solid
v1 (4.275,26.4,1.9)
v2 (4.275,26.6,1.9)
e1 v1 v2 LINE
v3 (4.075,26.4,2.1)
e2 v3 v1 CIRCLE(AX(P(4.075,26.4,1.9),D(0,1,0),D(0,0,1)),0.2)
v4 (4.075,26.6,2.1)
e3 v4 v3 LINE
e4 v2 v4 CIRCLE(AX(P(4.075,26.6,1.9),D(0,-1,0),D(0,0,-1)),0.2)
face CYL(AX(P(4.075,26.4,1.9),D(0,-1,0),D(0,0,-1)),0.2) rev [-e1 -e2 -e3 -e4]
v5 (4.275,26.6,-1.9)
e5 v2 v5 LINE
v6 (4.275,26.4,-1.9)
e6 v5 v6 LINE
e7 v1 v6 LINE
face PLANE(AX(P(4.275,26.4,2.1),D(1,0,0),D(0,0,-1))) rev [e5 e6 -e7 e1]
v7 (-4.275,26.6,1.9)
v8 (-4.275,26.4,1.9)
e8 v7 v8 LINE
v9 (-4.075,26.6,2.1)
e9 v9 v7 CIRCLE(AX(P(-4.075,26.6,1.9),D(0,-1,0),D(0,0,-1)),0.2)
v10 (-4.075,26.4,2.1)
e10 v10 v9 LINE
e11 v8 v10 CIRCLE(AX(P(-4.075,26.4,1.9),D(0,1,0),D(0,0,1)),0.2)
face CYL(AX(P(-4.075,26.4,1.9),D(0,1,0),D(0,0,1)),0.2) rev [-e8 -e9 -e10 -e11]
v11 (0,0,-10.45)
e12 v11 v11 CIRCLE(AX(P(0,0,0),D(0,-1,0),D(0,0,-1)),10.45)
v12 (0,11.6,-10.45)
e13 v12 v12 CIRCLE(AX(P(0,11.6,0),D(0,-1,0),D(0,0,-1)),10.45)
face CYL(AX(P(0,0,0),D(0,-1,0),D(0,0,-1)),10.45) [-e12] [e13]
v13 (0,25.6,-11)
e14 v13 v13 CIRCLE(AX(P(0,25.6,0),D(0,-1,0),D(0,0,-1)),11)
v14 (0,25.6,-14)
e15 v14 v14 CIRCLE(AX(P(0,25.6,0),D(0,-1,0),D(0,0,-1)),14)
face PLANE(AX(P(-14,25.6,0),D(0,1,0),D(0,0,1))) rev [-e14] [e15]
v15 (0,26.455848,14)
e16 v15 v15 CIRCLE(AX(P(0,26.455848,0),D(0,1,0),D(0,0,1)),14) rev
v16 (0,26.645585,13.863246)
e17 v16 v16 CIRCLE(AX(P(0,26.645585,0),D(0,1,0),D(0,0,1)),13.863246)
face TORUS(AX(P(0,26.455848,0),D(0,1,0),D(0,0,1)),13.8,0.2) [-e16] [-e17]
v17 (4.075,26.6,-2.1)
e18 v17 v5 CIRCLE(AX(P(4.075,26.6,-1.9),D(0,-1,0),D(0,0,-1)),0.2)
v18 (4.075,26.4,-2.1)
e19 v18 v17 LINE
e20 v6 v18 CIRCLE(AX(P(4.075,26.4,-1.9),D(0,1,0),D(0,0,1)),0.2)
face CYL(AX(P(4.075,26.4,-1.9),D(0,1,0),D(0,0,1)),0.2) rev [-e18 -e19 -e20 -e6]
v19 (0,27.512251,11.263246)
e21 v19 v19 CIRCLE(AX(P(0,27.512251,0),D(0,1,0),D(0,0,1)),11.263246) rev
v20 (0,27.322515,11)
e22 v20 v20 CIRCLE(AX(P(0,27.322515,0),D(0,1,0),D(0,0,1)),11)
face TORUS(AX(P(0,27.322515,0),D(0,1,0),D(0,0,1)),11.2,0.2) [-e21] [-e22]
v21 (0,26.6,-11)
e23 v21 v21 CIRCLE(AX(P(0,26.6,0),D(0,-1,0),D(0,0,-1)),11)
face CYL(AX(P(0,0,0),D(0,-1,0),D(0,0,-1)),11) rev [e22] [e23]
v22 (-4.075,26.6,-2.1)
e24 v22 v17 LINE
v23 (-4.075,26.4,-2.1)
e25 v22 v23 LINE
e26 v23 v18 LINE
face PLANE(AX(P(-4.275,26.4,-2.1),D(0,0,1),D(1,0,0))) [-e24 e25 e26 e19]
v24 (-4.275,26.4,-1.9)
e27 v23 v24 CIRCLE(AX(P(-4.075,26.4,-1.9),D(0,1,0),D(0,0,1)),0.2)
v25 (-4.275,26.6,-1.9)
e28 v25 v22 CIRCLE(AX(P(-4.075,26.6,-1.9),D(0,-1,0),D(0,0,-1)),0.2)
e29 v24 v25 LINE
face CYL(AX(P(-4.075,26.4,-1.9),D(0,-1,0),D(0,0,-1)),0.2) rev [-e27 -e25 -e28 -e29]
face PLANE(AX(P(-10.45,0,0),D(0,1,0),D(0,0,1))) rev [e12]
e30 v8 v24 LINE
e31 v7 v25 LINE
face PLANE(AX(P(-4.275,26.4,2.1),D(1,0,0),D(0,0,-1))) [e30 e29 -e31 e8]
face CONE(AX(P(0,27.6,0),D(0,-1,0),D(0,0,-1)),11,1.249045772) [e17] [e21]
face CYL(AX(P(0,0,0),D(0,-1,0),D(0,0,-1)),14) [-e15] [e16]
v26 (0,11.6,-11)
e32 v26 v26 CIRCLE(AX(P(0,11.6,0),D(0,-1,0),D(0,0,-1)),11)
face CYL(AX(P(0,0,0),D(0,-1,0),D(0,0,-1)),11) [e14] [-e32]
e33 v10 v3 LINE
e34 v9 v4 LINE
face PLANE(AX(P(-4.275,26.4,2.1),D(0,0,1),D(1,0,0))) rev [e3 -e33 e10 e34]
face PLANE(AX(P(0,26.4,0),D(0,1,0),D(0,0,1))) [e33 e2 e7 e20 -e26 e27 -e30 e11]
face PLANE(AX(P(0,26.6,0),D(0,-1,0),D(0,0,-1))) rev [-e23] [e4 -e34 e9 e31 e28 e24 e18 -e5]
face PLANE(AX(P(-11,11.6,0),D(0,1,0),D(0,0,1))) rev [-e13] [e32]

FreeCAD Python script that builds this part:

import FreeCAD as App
import Part
import Sketcher

V = App.Vector
Q = App.Units.Quantity


def edges_at(feature, points):
    """Names of the edges that pass closest to the given points."""
    edges = feature.Shape.Edges
    near = lambda p: min(range(len(edges)), key=lambda i: edges[i].distToShape(Part.Vertex(*p))[0])
    return sorted({f"Edge{near(p) + 1}" for p in points})


def add_polygon(sketch, points):
    """Adds a closed chain of lines whose ends are joined by coincident constraints."""
    first, n = sketch.GeometryCount, len(points)
    for a, b in zip(points, points[1:] + points[:1]):
        sketch.addGeometry(Part.LineSegment(App.Vector(*a, 0), App.Vector(*b, 0)), False)
    for i in range(n):
        sketch.addConstraint(Sketcher.Constraint("Coincident", first + i, 2, first + (i + 1) % n, 1))

doc = App.newDocument("Part")
body = doc.addObject("PartDesign::Body", "Body")

# Sketch on XY plane
sketch1 = body.newObject("Sketcher::SketchObject", "Sketch")
sketch1.AttachmentSupport = (doc.getObject("XY_Plane"), [""])
sketch1.MapMode = "FlatFace"
add_polygon(sketch1, [(-11, 27.6), (-14, 26.6), (-14, 25.6), (-11, 25.6), (-11, 11.6), (-10.4, 11.6), (-10.4, 0), (0, 0), (0, 26.6), (-11, 26.6)])  # lines 0-9
sketch1.addConstraint([
    Sketcher.Constraint("Vertical", 1),
    Sketcher.Constraint("Horizontal", 2),
    Sketcher.Constraint("Vertical", 3),
    Sketcher.Constraint("Horizontal", 4),
    Sketcher.Constraint("Vertical", 5),
    Sketcher.Constraint("Horizontal", 6),
    Sketcher.Constraint("Vertical", 7),
    Sketcher.Constraint("Horizontal", 8),
    Sketcher.Constraint("Vertical", 9),
    Sketcher.Constraint("Coincident", 6, 2, -1, 1),
    Sketcher.Constraint("Horizontal", 0, 2, 7, 2),
    Sketcher.Constraint("Vertical", 3, 2, 8, 2),
    Sketcher.Constraint("Equal", 1, 9),
    Sketcher.Constraint("DistanceX", 2, 1, 2, 2, Q("3 mm")),
    Sketcher.Constraint("DistanceX", 8, 2, 8, 1, Q("11 mm")),
    Sketcher.Constraint("DistanceY", 1, 2, 1, 1, Q("1 mm")),
    Sketcher.Constraint("DistanceY", 3, 2, 3, 1, Q("14 mm")),
    Sketcher.Constraint("DistanceY", 5, 2, 5, 1, Q("11.6 mm")),
    Sketcher.Constraint("DistanceX", 4, 1, 4, 2, Q("0.55 mm")),
])
revolution = body.newObject("PartDesign::Revolution", "Revolution")
revolution.Profile = sketch1
revolution.ReferenceAxis = (sketch1, ["V_Axis"])
revolution.Angle = 360
doc.recompute()

fillet = body.newObject("PartDesign::Fillet", "Fillet")
fillet.Base = (revolution, edges_at(revolution, [(11, 27.6, 0), (14, 26.6, 0)]))
fillet.Radius = 0.2

# Sketch on XZ plane
sketch2 = body.newObject("Sketcher::SketchObject", "Sketch001")
sketch2.AttachmentSupport = (doc.getObject("XZ_Plane"), [""])
sketch2.MapMode = "FlatFace"
sketch2.AttachmentOffset = App.Placement(V(0, 0, -26.6), App.Rotation())
add_polygon(sketch2, [(-4.3, -2.1), (-4.3, 2.1), (4.3, 2.1), (4.3, -2.1)])  # lines 0-3
sketch2.addConstraint([
    Sketcher.Constraint("Vertical", 0),
    Sketcher.Constraint("Horizontal", 1),
    Sketcher.Constraint("Vertical", 2),
    Sketcher.Constraint("Horizontal", 3),
    Sketcher.Constraint("Symmetric", 0, 2, 2, 2, -1, 1),
    Sketcher.Constraint("DistanceY", 0, 1, 0, 2, Q("4.2 mm")),
    Sketcher.Constraint("DistanceX", 1, 1, 1, 2, Q("8.55 mm")),
])
pocket1 = body.newObject("PartDesign::Pocket", "Pocket")
pocket1.Profile = sketch2
pocket1.Length = 0.2
pocket1.Reversed = True
doc.recompute()

fillet2 = body.newObject("PartDesign::Fillet", "Fillet001")
fillet2.Base = (pocket1, edges_at(pocket1, [
    (4.275, 26.5, 2.1),
    (-4.275, 26.5, 2.1),
    (-4.275, 26.5, -2.1),
    (4.275, 26.5, -2.1),
]))
fillet2.Radius = 0.2

doc.recompute()
